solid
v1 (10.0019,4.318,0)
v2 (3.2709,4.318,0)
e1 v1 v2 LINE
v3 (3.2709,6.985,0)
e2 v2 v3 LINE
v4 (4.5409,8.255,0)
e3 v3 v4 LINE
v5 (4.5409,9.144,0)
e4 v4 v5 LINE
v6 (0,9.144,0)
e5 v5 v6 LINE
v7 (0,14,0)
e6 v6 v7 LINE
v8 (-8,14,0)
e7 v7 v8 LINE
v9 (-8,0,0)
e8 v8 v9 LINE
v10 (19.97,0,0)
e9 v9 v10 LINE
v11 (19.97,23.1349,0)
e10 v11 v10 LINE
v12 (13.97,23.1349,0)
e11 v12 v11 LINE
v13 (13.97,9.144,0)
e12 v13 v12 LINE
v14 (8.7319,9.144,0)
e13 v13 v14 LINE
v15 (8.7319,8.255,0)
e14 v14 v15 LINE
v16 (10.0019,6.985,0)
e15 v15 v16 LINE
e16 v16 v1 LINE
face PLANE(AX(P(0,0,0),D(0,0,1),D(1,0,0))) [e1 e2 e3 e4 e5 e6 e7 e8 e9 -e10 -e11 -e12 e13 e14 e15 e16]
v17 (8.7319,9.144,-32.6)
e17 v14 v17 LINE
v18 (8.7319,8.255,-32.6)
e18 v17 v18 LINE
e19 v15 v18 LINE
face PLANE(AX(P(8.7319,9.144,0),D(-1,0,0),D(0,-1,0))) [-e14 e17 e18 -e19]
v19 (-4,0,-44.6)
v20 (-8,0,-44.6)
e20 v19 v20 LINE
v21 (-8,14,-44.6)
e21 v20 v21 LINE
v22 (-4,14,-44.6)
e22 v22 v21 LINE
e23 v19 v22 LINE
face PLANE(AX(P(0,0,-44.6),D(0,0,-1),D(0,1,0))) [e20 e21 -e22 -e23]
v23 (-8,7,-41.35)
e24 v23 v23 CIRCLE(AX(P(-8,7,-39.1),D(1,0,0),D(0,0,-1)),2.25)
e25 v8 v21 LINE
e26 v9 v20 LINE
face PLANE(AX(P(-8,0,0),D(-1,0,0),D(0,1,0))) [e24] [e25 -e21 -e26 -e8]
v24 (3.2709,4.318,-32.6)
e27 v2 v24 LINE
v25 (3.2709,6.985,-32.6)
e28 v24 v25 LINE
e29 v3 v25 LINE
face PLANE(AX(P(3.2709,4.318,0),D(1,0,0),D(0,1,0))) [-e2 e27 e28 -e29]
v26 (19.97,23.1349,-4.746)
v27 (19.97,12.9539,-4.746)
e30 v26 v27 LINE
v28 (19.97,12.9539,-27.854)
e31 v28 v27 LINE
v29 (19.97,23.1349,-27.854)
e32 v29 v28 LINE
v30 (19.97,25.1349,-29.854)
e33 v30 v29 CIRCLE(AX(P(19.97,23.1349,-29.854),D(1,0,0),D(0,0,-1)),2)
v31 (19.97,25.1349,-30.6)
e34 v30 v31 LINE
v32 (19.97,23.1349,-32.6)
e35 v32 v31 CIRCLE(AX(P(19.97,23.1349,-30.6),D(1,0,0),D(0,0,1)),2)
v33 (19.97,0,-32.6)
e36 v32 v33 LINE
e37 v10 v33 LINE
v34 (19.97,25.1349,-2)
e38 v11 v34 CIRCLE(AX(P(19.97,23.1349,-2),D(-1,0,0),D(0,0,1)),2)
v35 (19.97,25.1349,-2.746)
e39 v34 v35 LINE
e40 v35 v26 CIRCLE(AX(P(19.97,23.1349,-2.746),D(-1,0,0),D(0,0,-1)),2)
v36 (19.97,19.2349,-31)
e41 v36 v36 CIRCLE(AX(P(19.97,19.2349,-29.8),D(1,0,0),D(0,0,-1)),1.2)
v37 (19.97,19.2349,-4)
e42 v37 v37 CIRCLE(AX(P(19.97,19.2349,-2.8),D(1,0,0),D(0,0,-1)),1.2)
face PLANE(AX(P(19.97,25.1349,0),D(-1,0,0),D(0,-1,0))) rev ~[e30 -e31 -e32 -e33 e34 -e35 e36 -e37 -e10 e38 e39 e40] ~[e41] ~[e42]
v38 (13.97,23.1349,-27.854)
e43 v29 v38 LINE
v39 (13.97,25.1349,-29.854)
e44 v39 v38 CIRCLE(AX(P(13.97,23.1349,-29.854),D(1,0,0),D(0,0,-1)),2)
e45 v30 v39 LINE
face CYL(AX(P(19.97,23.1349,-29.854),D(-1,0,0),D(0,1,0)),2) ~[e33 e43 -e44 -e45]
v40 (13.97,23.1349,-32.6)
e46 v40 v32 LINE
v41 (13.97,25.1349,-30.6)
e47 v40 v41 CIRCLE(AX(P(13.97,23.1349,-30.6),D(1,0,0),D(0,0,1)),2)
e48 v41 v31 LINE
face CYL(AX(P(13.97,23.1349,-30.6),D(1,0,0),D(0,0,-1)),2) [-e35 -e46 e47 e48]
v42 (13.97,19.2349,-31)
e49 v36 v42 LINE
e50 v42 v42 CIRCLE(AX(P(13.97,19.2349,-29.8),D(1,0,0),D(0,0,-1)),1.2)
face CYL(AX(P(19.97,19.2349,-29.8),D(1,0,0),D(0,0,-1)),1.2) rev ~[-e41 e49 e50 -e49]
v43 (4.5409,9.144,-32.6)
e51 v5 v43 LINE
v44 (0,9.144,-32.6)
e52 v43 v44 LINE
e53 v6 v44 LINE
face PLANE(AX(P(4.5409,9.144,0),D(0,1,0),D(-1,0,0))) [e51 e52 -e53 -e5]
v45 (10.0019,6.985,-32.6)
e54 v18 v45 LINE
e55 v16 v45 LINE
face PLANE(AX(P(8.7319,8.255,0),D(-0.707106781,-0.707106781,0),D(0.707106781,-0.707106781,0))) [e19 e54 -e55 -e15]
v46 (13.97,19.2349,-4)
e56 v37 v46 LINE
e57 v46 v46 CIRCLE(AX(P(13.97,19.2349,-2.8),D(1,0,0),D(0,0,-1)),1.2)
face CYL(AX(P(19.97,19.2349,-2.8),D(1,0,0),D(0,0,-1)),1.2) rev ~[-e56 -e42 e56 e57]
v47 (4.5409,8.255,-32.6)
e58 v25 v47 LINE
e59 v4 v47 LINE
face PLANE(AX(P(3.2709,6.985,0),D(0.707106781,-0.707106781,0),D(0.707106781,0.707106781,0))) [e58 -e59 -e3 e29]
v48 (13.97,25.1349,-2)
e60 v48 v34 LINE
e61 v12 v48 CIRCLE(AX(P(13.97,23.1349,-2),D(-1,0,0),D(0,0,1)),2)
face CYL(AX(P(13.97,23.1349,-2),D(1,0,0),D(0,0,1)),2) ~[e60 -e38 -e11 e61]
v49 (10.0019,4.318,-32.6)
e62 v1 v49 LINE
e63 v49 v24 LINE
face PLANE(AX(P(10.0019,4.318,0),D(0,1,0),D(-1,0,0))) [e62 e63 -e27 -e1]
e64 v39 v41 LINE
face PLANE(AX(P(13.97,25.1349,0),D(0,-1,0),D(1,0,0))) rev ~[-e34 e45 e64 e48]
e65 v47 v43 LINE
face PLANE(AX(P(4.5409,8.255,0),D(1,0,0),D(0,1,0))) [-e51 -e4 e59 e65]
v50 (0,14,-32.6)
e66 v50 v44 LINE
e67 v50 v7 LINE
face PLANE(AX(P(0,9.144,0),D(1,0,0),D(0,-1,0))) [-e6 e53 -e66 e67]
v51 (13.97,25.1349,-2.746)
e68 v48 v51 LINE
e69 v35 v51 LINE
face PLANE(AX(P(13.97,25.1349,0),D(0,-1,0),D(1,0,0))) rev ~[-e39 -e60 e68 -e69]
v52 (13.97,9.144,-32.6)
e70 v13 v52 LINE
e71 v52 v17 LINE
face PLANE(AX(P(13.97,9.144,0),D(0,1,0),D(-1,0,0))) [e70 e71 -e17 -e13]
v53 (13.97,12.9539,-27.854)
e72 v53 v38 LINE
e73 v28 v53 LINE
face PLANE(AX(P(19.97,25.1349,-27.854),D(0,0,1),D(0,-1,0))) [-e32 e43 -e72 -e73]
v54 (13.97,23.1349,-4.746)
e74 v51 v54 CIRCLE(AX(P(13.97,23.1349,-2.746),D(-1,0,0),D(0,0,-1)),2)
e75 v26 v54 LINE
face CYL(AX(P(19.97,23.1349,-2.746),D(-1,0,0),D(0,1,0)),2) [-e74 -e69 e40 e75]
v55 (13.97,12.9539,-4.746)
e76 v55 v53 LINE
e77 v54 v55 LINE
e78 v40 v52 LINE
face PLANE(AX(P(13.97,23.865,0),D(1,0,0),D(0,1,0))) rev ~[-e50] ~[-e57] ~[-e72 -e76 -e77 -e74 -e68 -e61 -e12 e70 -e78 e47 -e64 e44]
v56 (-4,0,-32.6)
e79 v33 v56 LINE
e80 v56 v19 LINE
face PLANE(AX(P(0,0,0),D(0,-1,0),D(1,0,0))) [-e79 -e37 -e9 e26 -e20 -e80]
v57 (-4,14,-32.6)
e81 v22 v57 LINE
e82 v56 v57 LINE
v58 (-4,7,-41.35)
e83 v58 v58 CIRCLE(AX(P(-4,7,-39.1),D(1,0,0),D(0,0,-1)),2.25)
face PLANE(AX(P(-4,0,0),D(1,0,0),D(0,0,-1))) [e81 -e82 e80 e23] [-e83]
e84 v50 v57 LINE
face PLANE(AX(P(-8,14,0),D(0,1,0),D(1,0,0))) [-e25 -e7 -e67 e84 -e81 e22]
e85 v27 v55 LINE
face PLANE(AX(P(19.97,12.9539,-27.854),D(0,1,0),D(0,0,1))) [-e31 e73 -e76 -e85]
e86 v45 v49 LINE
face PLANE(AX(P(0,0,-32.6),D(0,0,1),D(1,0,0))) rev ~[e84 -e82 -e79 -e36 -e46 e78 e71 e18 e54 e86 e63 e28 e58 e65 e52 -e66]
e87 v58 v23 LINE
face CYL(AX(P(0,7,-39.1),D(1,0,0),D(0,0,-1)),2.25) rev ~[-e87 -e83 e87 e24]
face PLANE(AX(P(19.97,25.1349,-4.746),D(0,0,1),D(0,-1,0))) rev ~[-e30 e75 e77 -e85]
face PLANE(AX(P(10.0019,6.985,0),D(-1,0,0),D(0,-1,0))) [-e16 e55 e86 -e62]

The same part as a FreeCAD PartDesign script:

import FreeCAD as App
import Part
import Sketcher
from FreeCAD import Vector
Q = App.Units.Quantity


def edges_at(feature, points):
    """Names of the edges that pass closest to the given points."""
    edges = feature.Shape.Edges
    near = lambda p: min(range(len(edges)), key=lambda i: edges[i].distToShape(Part.Vertex(*p))[0])
    return sorted({f"Edge{near(p) + 1}" for p in points})


def add_polygon(sketch, points):
    """Adds a closed chain of lines whose ends are joined by coincident constraints."""
    first, n = sketch.GeometryCount, len(points)
    for a, b in zip(points, points[1:] + points[:1]):
        sketch.addGeometry(Part.LineSegment(App.Vector(*a, 0), App.Vector(*b, 0)), False)
    for i in range(n):
        sketch.addConstraint(Sketcher.Constraint("Coincident", first + i, 2, first + (i + 1) % n, 1))

doc = App.newDocument("Part")
params = doc.addObject("Spreadsheet::Sheet", "Params")
for row, (alias, value) in enumerate([
    ("sketch1_width", "6 mm"),
    ("sketch1_width2", "19.97 mm"),
    ("pad1_length", "32.6 mm"),
    ("pocket1_length", "32.6 mm"),
    ("sketch3_diameter", "2.4 mm"),
    ("pocket2_length", "32.6 mm"),
    ("fillet_radius", "2 mm"),
    ("sketch4_width", "8 mm"),
    ("sketch4_height", "14 mm"),
    ("pad2_length", "12 mm"),
    ("pad2_length2", "32.6 mm"),
    ("sketch5_diameter", "4.5 mm"),
    ("sketch5_height", "12 mm"),
    ("pad3_length", "8 mm"),
    ("sketch6_width", "4 mm"),
    ("sketch6_height", "14 mm"),
    ("pocket3_length", "12 mm"),
    ("sketch7_diameter", "4.5 mm"),
    ("sketch7_height", "12 mm"),
    ("pocket4_length", "4 mm"),
    ("sketch8_width", "4 mm"),
    ("sketch8_height", "14 mm"),
    ("pocket5_length", "12 mm"),
], start=1):
    params.set(f"A{row}", alias)
    params.set(f"B{row}", "=" + value)
    params.setAlias(f"B{row}", alias)

body = doc.addObject("PartDesign::Body", "Body")

sketch1 = body.newObject("Sketcher::SketchObject", "Sketch")
sketch1.AttachmentSupport = (doc.getObject("XY_Plane"), [""])
sketch1.MapMode = "FlatFace"
add_polygon(sketch1, [(14, 25.1), (14, 9.1), (8.7, 9.1), (8.7, 8.3), (10, 7), (10, 4.3), (3.3, 4.3), (3.3, 7), (4.5, 8.3), (4.5, 9.1), (0, 9.1), (0, 0), (20, 0), (20, 25.1)])
sketch1.addConstraint(Sketcher.Constraint("Vertical", 0))
sketch1.addConstraint(Sketcher.Constraint("Horizontal", 1))
sketch1.addConstraint(Sketcher.Constraint("Vertical", 2))
sketch1.addConstraint(Sketcher.Constraint("Vertical", 4))
sketch1.addConstraint(Sketcher.Constraint("Horizontal", 5))
sketch1.addConstraint(Sketcher.Constraint("Vertical", 6))
sketch1.addConstraint(Sketcher.Constraint("Vertical", 8))
sketch1.addConstraint(Sketcher.Constraint("Horizontal", 9))
sketch1.addConstraint(Sketcher.Constraint("Vertical", 10))
sketch1.addConstraint(Sketcher.Constraint("Horizontal", 11))
sketch1.addConstraint(Sketcher.Constraint("Vertical", 12))
sketch1.addConstraint(Sketcher.Constraint("Horizontal", 13))
sketch1.addConstraint(Sketcher.Constraint("Coincident", 10, 2, -1, 1))
sketch1.addConstraint(Sketcher.Constraint("Perpendicular", 3, 7))
sketch1.addConstraint(Sketcher.Constraint("Horizontal", 3, 2, 6, 2))
sketch1.addConstraint(Sketcher.Constraint("Horizontal", 2, 2, 7, 2))
sketch1.addConstraint(Sketcher.Constraint("Horizontal", 1, 2, 8, 2))
sketch1.addConstraint(Sketcher.Constraint("Equal", 3, 7))
sketch1.addConstraint(Sketcher.Constraint("DistanceX", 13, 2, 13, 1, Q("6 mm")))
sketch1.addConstraint(Sketcher.Constraint("DistanceX", 11, 1, 11, 2, Q("19.97 mm")))
sketch1.addConstraint(Sketcher.Constraint("DistanceX", 1, 2, 1, 1, Q("5.238 mm")))
sketch1.addConstraint(Sketcher.Constraint("DistanceX", 5, 2, 5, 1, Q("6.731 mm")))
sketch1.addConstraint(Sketcher.Constraint("DistanceX", 9, 2, 9, 1, Q("4.541 mm")))
sketch1.addConstraint(Sketcher.Constraint("DistanceY", 0, 2, 0, 1, Q("15.991 mm")))
sketch1.addConstraint(Sketcher.Constraint("DistanceY", 2, 2, 2, 1, Q("0.889 mm")))
sketch1.addConstraint(Sketcher.Constraint("DistanceY", 4, 2, 4, 1, Q("2.667 mm")))
sketch1.addConstraint(Sketcher.Constraint("DistanceY", 10, 2, 10, 1, Q("9.144 mm")))
sketch1.setExpression("Constraints[32]", "Params.sketch1_width")
sketch1.setExpression("Constraints[33]", "Params.sketch1_width2")
pad1 = body.newObject("PartDesign::Pad", "Pad")
pad1.Profile = sketch1
pad1.setExpression("Length", "Params.pad1_length")
pad1.Reversed = True

sketch2 = body.newObject("Sketcher::SketchObject", "Sketch001")
sketch2.AttachmentSupport = (doc.getObject("YZ_Plane"), [""])
sketch2.MapMode = "FlatFace"
sketch2.AttachmentOffset = App.Placement(Vector(0, 0, 19.97), App.Rotation())
add_polygon(sketch2, [(25, -28), (25, -5), (13, -5), (13, -28)])
sketch2.addConstraint(Sketcher.Constraint("Vertical", 0))
sketch2.addConstraint(Sketcher.Constraint("Horizontal", 1))
sketch2.addConstraint(Sketcher.Constraint("Vertical", 2))
sketch2.addConstraint(Sketcher.Constraint("Horizontal", 3))
sketch2.addConstraint(Sketcher.Constraint("DistanceX", 1, 2, 1, 1, Q("12.181 mm")))
sketch2.addConstraint(Sketcher.Constraint("DistanceY", 0, 1, 0, 2, Q("23.108 mm")))
sketch2.addConstraint(Sketcher.Constraint("DistanceX", -1, 1, 0, 2, Q("25.135 mm")))
sketch2.addConstraint(Sketcher.Constraint("DistanceY", 0, 2, -1, 1, Q("4.746 mm")))
pocket1 = body.newObject("PartDesign::Pocket", "Pocket")
pocket1.Profile = sketch2
pocket1.setExpression("Length", "Params.pocket1_length")

sketch3 = body.newObject("Sketcher::SketchObject", "Sketch002")
sketch3.AttachmentSupport = (doc.getObject("YZ_Plane"), [""])
sketch3.MapMode = "FlatFace"
sketch3.AttachmentOffset = App.Placement(Vector(0, 0, 19.97), App.Rotation())
sketch3.addGeometry(Part.Circle(Vector(19.2, -2.8, 0), Vector(0, 0, 1), 1.2), False)
sketch3.addGeometry(Part.Circle(Vector(19.2, -29.8, 0), Vector(0, 0, 1), 1.2), False)
sketch3.addConstraint(Sketcher.Constraint("Equal", 0, 1))
sketch3.addConstraint(Sketcher.Constraint("Vertical", 0, 3, 1, 3))
sketch3.addConstraint(Sketcher.Constraint("Diameter", 0, Q("2.4 mm")))
sketch3.addConstraint(Sketcher.Constraint("DistanceY", 1, 3, 0, 3, Q("27 mm")))
sketch3.addConstraint(Sketcher.Constraint("DistanceY", 0, 3, -1, 1, Q("2.8 mm")))
sketch3.addConstraint(Sketcher.Constraint("DistanceX", -1, 1, 0, 3, Q("19.235 mm")))
sketch3.setExpression("Constraints[2]", "Params.sketch3_diameter")
pocket2 = body.newObject("PartDesign::Pocket", "Pocket001")
pocket2.Profile = sketch3
pocket2.setExpression("Length", "Params.pocket2_length")
doc.recompute()

fillet = body.newObject("PartDesign::Fillet", "Fillet")
fillet.Base = (pocket2, edges_at(pocket2, [
    (16.97, 25.135, 0),
    (16.97, 25.135, -4.746),
    (16.97, 25.135, -27.854),
    (16.97, 25.135, -32.6),
]))
fillet.setExpression("Radius", "Params.fillet_radius")

sketch4 = body.newObject("Sketcher::SketchObject", "Sketch003")
sketch4.AttachmentSupport = (doc.getObject("XY_Plane"), [""])
sketch4.MapMode = "FlatFace"
add_polygon(sketch4, [(-8, 0), (0, 0), (0, 14), (-8, 14)])
sketch4.addConstraint(Sketcher.Constraint("Horizontal", 0))
sketch4.addConstraint(Sketcher.Constraint("Vertical", 1))
sketch4.addConstraint(Sketcher.Constraint("Horizontal", 2))
sketch4.addConstraint(Sketcher.Constraint("Vertical", 3))
sketch4.addConstraint(Sketcher.Constraint("Coincident", 0, 2, -1, 1))
sketch4.addConstraint(Sketcher.Constraint("DistanceX", 0, 1, 0, 2, Q("8 mm")))
sketch4.addConstraint(Sketcher.Constraint("DistanceY", 1, 1, 1, 2, Q("14 mm")))
sketch4.setExpression("Constraints[9]", "Params.sketch4_width")
sketch4.setExpression("Constraints[10]", "Params.sketch4_height")
pad2 = body.newObject("PartDesign::Pad", "Pad001")
pad2.Profile = sketch4
pad2.Type = "TwoLengths"
pad2.setExpression("Length", "Params.pad2_length")
pad2.setExpression("Length2", "Params.pad2_length2")

sketch5 = body.newObject("Sketcher::SketchObject", "Sketch004")
sketch5.AttachmentSupport = (doc.getObject("YZ_Plane"), [""])
sketch5.MapMode = "FlatFace"
add_polygon(sketch5, [(14, -32.6), (0, -32.6), (0, -44.6), (14, -44.6)])
sketch5.addGeometry(Part.Circle(Vector(7, -39.1, 0), Vector(0, 0, 1), 2.2), False)
sketch5.addGeometry(Part.Circle(Vector(7, 6.5, 0), Vector(0, 0, 1), 2.2), False)
sketch5.addConstraint(Sketcher.Constraint("Horizontal", 0))
sketch5.addConstraint(Sketcher.Constraint("Vertical", 1))
sketch5.addConstraint(Sketcher.Constraint("Horizontal", 2))
sketch5.addConstraint(Sketcher.Constraint("Vertical", 3))
sketch5.addConstraint(Sketcher.Constraint("Equal", 4, 5))
sketch5.addConstraint(Sketcher.Constraint("PointOnObject", 0, 2, -2))
sketch5.addConstraint(Sketcher.Constraint("Vertical", 4, 3, 5, 3))
sketch5.addConstraint(Sketcher.Constraint("Diameter", 4, Q("4.5 mm")))
sketch5.addConstraint(Sketcher.Constraint("DistanceX", -1, 1, 4, 3, Q("7 mm")))
sketch5.addConstraint(Sketcher.Constraint("DistanceX", 4, 3, 2, 2, Q("7 mm")))
sketch5.addConstraint(Sketcher.Constraint("DistanceY", 1, 2, 4, 3, Q("5.5 mm")))
sketch5.addConstraint(Sketcher.Constraint("DistanceY", 1, 2, 1, 1, Q("12 mm")))
sketch5.addConstraint(Sketcher.Constraint("DistanceY", 4, 3, -1, 1, Q("39.1 mm")))
sketch5.addConstraint(Sketcher.Constraint("DistanceY", -1, 1, 5, 3, Q("6.5 mm")))
sketch5.setExpression("Constraints[11]", "Params.sketch5_diameter")
sketch5.setExpression("Constraints[15]", "Params.sketch5_height")
pad3 = body.newObject("PartDesign::Pad", "Pad002")
pad3.Profile = sketch5
pad3.setExpression("Length", "Params.pad3_length")
pad3.Reversed = True

sketch6 = body.newObject("Sketcher::SketchObject", "Sketch005")
sketch6.AttachmentSupport = (doc.getObject("XY_Plane"), [""])
sketch6.MapMode = "FlatFace"
sketch6.AttachmentOffset = App.Placement(Vector(0, 0, 12), App.Rotation())
add_polygon(sketch6, [(0, 14), (-4, 14), (-4, 0), (0, 0)])
sketch6.addConstraint(Sketcher.Constraint("Horizontal", 0))
sketch6.addConstraint(Sketcher.Constraint("Vertical", 1))
sketch6.addConstraint(Sketcher.Constraint("Horizontal", 2))
sketch6.addConstraint(Sketcher.Constraint("Vertical", 3))
sketch6.addConstraint(Sketcher.Constraint("Coincident", 2, 2, -1, 1))
sketch6.addConstraint(Sketcher.Constraint("DistanceX", 0, 2, 0, 1, Q("4 mm")))
sketch6.addConstraint(Sketcher.Constraint("DistanceY", 1, 2, 1, 1, Q("14 mm")))
sketch6.setExpression("Constraints[9]", "Params.sketch6_width")
sketch6.setExpression("Constraints[10]", "Params.sketch6_height")
pocket3 = body.newObject("PartDesign::Pocket", "Pocket002")
pocket3.Profile = sketch6
pocket3.setExpression("Length", "Params.pocket3_length")

sketch7 = body.newObject("Sketcher::SketchObject", "Sketch006")
sketch7.AttachmentSupport = (doc.getObject("YZ_Plane"), [""])
sketch7.MapMode = "FlatFace"
add_polygon(sketch7, [(14, -32.6), (0, -32.6), (0, -44.6), (14, -44.6)])
sketch7.addGeometry(Part.Circle(Vector(7, -39.1, 0), Vector(0, 0, 1), 2.2), False)
sketch7.addConstraint(Sketcher.Constraint("Horizontal", 0))
sketch7.addConstraint(Sketcher.Constraint("Vertical", 1))
sketch7.addConstraint(Sketcher.Constraint("Horizontal", 2))
sketch7.addConstraint(Sketcher.Constraint("Vertical", 3))
sketch7.addConstraint(Sketcher.Constraint("PointOnObject", 0, 2, -2))
sketch7.addConstraint(Sketcher.Constraint("Diameter", 4, Q("4.5 mm")))
sketch7.addConstraint(Sketcher.Constraint("DistanceX", -1, 1, 4, 3, Q("7 mm")))
sketch7.addConstraint(Sketcher.Constraint("DistanceX", 4, 3, 2, 2, Q("7 mm")))
sketch7.addConstraint(Sketcher.Constraint("DistanceY", 1, 2, 4, 3, Q("5.5 mm")))
sketch7.addConstraint(Sketcher.Constraint("DistanceY", 1, 2, 1, 1, Q("12 mm")))
sketch7.addConstraint(Sketcher.Constraint("DistanceY", 4, 3, -1, 1, Q("39.1 mm")))
sketch7.setExpression("Constraints[9]", "Params.sketch7_diameter")
sketch7.setExpression("Constraints[13]", "Params.sketch7_height")
pocket4 = body.newObject("PartDesign::Pocket", "Pocket003")
pocket4.Profile = sketch7
pocket4.setExpression("Length", "Params.pocket4_length")

sketch8 = body.newObject("Sketcher::SketchObject", "Sketch007")
sketch8.AttachmentSupport = (doc.getObject("XY_Plane"), [""])
sketch8.MapMode = "FlatFace"
sketch8.AttachmentOffset = App.Placement(Vector(0, 0, 12), App.Rotation())
add_polygon(sketch8, [(-8, 0), (-4, 0), (-4, 14), (-8, 14)])
sketch8.addConstraint(Sketcher.Constraint("Horizontal", 0))
sketch8.addConstraint(Sketcher.Constraint("Vertical", 1))
sketch8.addConstraint(Sketcher.Constraint("Horizontal", 2))
sketch8.addConstraint(Sketcher.Constraint("Vertical", 3))
sketch8.addConstraint(Sketcher.Constraint("PointOnObject", 0, 2, -1))
sketch8.addConstraint(Sketcher.Constraint("DistanceX", 0, 1, 0, 2, Q("4 mm")))
sketch8.addConstraint(Sketcher.Constraint("DistanceY", 1, 1, 1, 2, Q("14 mm")))
sketch8.addConstraint(Sketcher.Constraint("DistanceX", 0, 2, -1, 1, Q("4 mm")))
sketch8.setExpression("Constraints[9]", "Params.sketch8_width")
sketch8.setExpression("Constraints[10]", "Params.sketch8_height")
pocket5 = body.newObject("PartDesign::Pocket", "Pocket004")
pocket5.Profile = sketch8
pocket5.setExpression("Length", "Params.pocket5_length")

doc.recompute()
